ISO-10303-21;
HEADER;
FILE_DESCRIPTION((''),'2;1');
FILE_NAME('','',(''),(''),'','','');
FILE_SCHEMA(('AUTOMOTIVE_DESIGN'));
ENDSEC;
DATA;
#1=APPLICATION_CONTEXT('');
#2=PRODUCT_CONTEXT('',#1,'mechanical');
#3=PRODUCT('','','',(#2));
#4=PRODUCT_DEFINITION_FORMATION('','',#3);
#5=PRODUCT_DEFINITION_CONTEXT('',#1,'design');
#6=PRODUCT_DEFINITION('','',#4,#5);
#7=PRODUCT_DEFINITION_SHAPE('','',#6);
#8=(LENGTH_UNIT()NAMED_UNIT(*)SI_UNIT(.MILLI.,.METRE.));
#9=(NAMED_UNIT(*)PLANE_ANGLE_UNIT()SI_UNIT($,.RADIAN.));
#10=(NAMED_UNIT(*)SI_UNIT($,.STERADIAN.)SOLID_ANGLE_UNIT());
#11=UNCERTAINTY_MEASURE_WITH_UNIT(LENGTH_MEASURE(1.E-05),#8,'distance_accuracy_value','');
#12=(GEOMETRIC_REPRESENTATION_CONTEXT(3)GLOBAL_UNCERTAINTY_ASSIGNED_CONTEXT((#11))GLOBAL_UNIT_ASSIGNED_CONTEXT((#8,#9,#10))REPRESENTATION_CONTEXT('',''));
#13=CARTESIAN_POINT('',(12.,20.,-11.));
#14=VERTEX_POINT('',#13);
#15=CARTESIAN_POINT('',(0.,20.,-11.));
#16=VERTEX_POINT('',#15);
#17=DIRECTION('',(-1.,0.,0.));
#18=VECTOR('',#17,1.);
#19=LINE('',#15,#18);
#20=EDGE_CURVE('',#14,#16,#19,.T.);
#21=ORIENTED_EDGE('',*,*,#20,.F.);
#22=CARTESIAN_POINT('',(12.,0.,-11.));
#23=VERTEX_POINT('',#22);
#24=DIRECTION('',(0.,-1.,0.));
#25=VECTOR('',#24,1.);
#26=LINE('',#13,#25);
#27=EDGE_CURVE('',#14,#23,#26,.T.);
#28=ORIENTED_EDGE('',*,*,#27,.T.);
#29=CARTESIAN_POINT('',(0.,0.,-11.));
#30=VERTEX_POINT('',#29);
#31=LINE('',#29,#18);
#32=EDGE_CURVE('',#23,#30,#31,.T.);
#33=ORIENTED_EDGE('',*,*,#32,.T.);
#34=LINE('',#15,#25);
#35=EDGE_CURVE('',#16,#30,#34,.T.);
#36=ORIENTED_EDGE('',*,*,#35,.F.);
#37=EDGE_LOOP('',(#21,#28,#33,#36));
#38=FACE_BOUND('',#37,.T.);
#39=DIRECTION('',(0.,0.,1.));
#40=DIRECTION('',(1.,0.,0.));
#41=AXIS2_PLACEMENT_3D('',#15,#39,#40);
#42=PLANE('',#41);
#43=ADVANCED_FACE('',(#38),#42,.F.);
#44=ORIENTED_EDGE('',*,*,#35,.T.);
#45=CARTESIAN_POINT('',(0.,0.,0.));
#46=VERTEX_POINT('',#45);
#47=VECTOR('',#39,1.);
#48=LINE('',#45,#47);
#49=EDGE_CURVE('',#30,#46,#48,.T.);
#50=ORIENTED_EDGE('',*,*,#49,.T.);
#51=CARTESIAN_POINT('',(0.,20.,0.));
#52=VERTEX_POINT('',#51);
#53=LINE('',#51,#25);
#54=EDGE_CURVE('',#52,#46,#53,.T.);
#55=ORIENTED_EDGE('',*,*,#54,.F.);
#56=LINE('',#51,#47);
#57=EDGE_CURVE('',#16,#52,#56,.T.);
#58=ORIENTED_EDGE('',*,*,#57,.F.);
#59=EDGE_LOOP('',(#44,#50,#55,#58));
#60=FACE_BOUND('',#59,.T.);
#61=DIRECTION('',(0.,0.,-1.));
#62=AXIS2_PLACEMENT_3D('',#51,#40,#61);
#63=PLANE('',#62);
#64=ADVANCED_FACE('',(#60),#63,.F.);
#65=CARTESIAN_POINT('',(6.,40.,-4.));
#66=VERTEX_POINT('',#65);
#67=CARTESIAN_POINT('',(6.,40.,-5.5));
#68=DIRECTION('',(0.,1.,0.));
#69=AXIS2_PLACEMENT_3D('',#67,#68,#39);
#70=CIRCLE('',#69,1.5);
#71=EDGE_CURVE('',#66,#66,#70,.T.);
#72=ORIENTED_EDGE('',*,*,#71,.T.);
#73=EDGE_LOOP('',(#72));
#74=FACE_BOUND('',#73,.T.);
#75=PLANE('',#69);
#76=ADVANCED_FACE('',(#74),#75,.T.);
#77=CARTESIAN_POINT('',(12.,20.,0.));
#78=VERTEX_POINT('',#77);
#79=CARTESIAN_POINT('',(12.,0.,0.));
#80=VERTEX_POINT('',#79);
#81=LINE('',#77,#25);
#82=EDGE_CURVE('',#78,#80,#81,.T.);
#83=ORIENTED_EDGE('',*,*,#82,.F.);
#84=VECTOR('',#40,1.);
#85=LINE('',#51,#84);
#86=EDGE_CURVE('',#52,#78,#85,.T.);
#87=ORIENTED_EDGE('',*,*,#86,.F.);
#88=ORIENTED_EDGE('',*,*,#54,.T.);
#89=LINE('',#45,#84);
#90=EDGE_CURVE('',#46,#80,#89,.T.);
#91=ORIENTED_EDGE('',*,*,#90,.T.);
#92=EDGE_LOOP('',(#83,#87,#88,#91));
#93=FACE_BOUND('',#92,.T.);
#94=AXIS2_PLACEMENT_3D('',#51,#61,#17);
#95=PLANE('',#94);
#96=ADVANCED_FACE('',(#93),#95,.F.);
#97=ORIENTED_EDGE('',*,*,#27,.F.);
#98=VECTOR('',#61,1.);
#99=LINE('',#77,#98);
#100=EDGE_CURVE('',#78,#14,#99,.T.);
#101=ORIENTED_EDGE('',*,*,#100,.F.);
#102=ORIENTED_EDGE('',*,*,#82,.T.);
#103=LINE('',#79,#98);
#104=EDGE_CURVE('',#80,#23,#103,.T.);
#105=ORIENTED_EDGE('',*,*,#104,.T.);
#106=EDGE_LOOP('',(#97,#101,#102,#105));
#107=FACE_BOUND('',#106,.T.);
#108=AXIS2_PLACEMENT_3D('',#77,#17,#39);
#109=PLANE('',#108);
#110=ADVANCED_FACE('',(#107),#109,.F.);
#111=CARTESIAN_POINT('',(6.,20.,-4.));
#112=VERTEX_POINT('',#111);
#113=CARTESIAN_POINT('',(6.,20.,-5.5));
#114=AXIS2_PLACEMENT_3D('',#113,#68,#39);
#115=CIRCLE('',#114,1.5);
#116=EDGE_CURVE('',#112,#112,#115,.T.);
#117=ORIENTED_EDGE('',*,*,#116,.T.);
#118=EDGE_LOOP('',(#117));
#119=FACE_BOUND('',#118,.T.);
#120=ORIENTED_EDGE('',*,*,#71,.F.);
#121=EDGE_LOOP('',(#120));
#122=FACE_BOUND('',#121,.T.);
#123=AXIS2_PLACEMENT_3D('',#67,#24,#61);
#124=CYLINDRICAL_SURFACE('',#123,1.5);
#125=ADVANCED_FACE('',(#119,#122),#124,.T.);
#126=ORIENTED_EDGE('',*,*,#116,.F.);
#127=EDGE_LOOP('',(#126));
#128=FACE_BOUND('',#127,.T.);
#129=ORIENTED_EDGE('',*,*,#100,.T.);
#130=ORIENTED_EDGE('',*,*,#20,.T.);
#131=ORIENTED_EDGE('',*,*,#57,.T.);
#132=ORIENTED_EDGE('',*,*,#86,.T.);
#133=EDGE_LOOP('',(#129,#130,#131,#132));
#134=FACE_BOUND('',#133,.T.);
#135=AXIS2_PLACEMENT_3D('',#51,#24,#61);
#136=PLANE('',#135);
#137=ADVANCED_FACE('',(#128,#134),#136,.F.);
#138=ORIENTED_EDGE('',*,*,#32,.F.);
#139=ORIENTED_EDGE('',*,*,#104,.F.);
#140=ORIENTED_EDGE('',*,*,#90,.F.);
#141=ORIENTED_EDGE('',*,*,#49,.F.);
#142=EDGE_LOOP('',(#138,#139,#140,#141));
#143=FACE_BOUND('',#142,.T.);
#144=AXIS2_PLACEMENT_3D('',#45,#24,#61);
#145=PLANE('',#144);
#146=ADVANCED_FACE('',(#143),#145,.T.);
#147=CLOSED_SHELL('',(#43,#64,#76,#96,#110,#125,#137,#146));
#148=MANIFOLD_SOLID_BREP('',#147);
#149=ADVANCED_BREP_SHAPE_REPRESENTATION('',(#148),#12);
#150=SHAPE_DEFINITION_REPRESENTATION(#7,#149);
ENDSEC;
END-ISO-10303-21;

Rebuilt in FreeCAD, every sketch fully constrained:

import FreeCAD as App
import Part
import Sketcher
Q = App.Units.Quantity

doc = App.newDocument("Part")
params = doc.addObject("Spreadsheet::Sheet", "Params")
for row, (alias, value) in enumerate([
    ("sketch1_width", "12 mm"),
    ("sketch1_height", "11 mm"),
    ("pad1_length", "20 mm"),
    ("sketch2_diameter", "3 mm"),
    ("pad2_length", "20 mm"),
], start=1):
    params.set(f"A{row}", alias)
    params.set(f"B{row}", "=" + value)
    params.setAlias(f"B{row}", alias)

body = doc.addObject("PartDesign::Body", "Body")

# Sketch on XZ plane
sketch1 = body.newObject("Sketcher::SketchObject", "Sketch")
sketch1.AttachmentSupport = (doc.getObject("XZ_Plane"), [""])
sketch1.MapMode = "FlatFace"
sketch1.addGeometry([
    Part.LineSegment(App.Vector(0, -11, 0), App.Vector(0, 0, 0)),
    Part.LineSegment(App.Vector(0, 0, 0), App.Vector(12, 0, 0)),
    Part.LineSegment(App.Vector(12, 0, 0), App.Vector(12, -11, 0)),
    Part.LineSegment(App.Vector(12, -11, 0), App.Vector(0, -11, 0)),
], False)
sketch1.addConstraint([
    Sketcher.Constraint("Coincident", 0, 2, 1, 1),
    Sketcher.Constraint("Coincident", 1, 2, 2, 1),
    Sketcher.Constraint("Coincident", 2, 2, 3, 1),
    Sketcher.Constraint("Coincident", 3, 2, 0, 1),
    Sketcher.Constraint("Vertical", 0),
    Sketcher.Constraint("Horizontal", 1),
    Sketcher.Constraint("Vertical", 2),
    Sketcher.Constraint("Horizontal", 3),
    Sketcher.Constraint("Coincident", 0, 2, -1, 1),
    Sketcher.Constraint("DistanceX", 1, 1, 1, 2, Q("12 mm")),
    Sketcher.Constraint("DistanceY", 0, 1, 0, 2, Q("11 mm")),
])
sketch1.setExpression("Constraints[9]", "Params.sketch1_width")
sketch1.setExpression("Constraints[10]", "Params.sketch1_height")
pad1 = body.newObject("PartDesign::Pad", "Pad")
pad1.Profile = sketch1
pad1.setExpression("Length", "Params.pad1_length")
pad1.Reversed = True

# Sketch on XZ plane
sketch2 = body.newObject("Sketcher::SketchObject", "Sketch001")
sketch2.AttachmentSupport = (doc.getObject("XZ_Plane"), [""])
sketch2.MapMode = "FlatFace"
sketch2.AttachmentOffset = App.Placement(App.Vector(0, 0, -20), App.Rotation())
sketch2.addGeometry(Part.Circle(App.Vector(6, -5.5, 0), App.Vector(0, 0, 1), 1.5), False)
sketch2.addConstraint([
    Sketcher.Constraint("Diameter", 0, Q("3 mm")),
    Sketcher.Constraint("DistanceX", -1, 1, 0, 3, Q("6 mm")),
    Sketcher.Constraint("DistanceY", 0, 3, -1, 1, Q("5.5 mm")),
])
sketch2.setExpression("Constraints[0]", "Params.sketch2_diameter")
pad2 = body.newObject("PartDesign::Pad", "Pad001")
pad2.Profile = sketch2
pad2.setExpression("Length", "Params.pad2_length")
pad2.Reversed = True

doc.recompute()
